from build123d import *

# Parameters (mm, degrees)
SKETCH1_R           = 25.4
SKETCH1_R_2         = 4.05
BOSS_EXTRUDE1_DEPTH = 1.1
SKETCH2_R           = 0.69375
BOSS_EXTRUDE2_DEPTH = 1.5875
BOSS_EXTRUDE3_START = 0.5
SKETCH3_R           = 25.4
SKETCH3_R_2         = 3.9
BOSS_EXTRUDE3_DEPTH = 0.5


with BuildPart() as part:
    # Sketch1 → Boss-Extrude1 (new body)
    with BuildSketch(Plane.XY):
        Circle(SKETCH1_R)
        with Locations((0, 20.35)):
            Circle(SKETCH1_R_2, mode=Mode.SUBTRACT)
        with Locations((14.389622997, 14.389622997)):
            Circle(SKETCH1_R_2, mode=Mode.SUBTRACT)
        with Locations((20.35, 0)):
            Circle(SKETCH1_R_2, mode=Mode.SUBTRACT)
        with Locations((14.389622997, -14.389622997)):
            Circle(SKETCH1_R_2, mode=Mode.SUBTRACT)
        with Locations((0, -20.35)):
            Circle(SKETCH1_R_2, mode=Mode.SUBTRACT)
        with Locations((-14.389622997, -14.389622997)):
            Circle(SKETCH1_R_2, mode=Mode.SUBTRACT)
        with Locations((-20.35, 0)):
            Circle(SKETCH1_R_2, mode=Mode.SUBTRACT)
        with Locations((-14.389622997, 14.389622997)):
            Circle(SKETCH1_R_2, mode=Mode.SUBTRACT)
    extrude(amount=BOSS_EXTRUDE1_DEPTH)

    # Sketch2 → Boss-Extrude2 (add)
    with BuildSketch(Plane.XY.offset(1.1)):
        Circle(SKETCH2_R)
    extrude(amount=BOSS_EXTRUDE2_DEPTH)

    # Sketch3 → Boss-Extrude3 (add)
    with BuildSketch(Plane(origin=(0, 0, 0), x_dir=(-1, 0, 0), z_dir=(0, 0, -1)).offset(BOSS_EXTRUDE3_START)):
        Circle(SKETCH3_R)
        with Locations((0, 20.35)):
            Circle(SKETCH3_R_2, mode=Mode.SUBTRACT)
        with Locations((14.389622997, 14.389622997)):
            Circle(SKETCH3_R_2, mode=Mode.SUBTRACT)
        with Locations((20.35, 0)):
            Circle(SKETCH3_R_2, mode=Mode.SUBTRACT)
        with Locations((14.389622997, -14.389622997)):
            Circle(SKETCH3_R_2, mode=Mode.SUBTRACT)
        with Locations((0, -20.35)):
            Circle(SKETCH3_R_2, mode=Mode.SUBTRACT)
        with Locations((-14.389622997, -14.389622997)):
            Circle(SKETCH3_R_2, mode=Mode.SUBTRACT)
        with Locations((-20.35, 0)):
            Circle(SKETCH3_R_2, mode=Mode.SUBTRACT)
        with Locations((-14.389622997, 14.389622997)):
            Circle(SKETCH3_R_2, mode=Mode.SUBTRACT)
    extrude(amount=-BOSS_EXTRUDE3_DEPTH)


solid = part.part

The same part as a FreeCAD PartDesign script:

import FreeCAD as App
import Part
import Sketcher

V = App.Vector

doc = App.newDocument("Part")
body = doc.addObject("PartDesign::Body", "Body")

# Sketch on XY plane
sketch1 = body.newObject("Sketcher::SketchObject", "Sketch")
sketch1.AttachmentSupport = (doc.getObject("XY_Plane"), [""])
sketch1.MapMode = "FlatFace"
sketch1.addGeometry([
    Part.Circle(V(0, 0, 0), V(0, 0, 1), 25.4),  # 0
    Part.Circle(V(-14.4, -14.4, 0), V(0, 0, 1), 4),  # 1
    Part.Circle(V(0, -20.4, 0), V(0, 0, 1), 4),  # 2
    Part.Circle(V(14.4, -14.4, 0), V(0, 0, 1), 4),  # 3
    Part.Circle(V(-20.4, 0, 0), V(0, 0, 1), 4),  # 4
    Part.Circle(V(-14.4, 14.4, 0), V(0, 0, 1), 4),  # 5
    Part.Circle(V(20.4, 0, 0), V(0, 0, 1), 4),  # 6
    Part.Circle(V(0, 20.4, 0), V(0, 0, 1), 4),  # 7
    Part.Circle(V(14.4, 14.4, 0), V(0, 0, 1), 4),  # 8
], False)
sketch1.addConstraint([
    Sketcher.Constraint("Coincident", 0, 3, -1, 1),
    Sketcher.Constraint("Equal", 1, 2),
    Sketcher.Constraint("Equal", 2, 3),
    Sketcher.Constraint("Equal", 3, 4),
    Sketcher.Constraint("Equal", 4, 5),
    Sketcher.Constraint("Equal", 5, 6),
    Sketcher.Constraint("Equal", 6, 7),
    Sketcher.Constraint("Equal", 7, 8),
    Sketcher.Constraint("Symmetric", 3, 3, 5, 3, -1, 1),
    Sketcher.Constraint("Symmetric", 4, 3, 6, 3, -1, 1),
    Sketcher.Constraint("Symmetric", 2, 3, 7, 3, -1, 1),
    Sketcher.Constraint("Symmetric", 1, 3, 8, 3, -1, 1),
    Sketcher.Constraint("Symmetric", 1, 3, 3, 3, -2),
    Sketcher.Constraint("PointOnObject", 2, 3, -2),
    Sketcher.Constraint("PointOnObject", 4, 3, -1),
    Sketcher.Constraint("Diameter", 0, 50.8),
    Sketcher.Constraint("Diameter", 1, 8.1),
    Sketcher.Constraint("DistanceY", 2, 3, -1, 1, 20.35),
    Sketcher.Constraint("DistanceX", 4, 3, -1, 1, 20.35),
    Sketcher.Constraint("DistanceX", 1, 3, -1, 1, 14.389623),
    Sketcher.Constraint("DistanceY", 1, 3, -1, 1, 14.389623),
])
pad1 = body.newObject("PartDesign::Pad", "Pad")
pad1.Profile = sketch1
pad1.Length = 1.1

# Sketch on XY plane
sketch2 = body.newObject("Sketcher::SketchObject", "Sketch001")
sketch2.AttachmentSupport = (doc.getObject("XY_Plane"), [""])
sketch2.MapMode = "FlatFace"
sketch2.AttachmentOffset = App.Placement(V(0, 0, 1.1), App.Rotation())
sketch2.addGeometry(Part.Circle(V(0, 0, 0), V(0, 0, 1), 0.7), False)
sketch2.addConstraint([
    Sketcher.Constraint("Coincident", 0, 3, -1, 1),
    Sketcher.Constraint("Diameter", 0, 1.3875),
])
pad2 = body.newObject("PartDesign::Pad", "Pad001")
pad2.Profile = sketch2
pad2.Length = 1.5875

# Sketch on XY plane
sketch3 = body.newObject("Sketcher::SketchObject", "Sketch002")
sketch3.AttachmentSupport = (doc.getObject("XY_Plane"), [""])
sketch3.MapMode = "FlatFace"
sketch3.AttachmentOffset = App.Placement(V(0, 0, -0.5), App.Rotation())
sketch3.addGeometry([
    Part.Circle(V(0, 0, 0), V(0, 0, 1), 25.4),  # 0
    Part.Circle(V(14.4, -14.4, 0), V(0, 0, 1), 3.9),  # 1
    Part.Circle(V(0, -20.4, 0), V(0, 0, 1), 3.9),  # 2
    Part.Circle(V(-14.4, -14.4, 0), V(0, 0, 1), 3.9),  # 3
    Part.Circle(V(20.4, 0, 0), V(0, 0, 1), 3.9),  # 4
    Part.Circle(V(14.4, 14.4, 0), V(0, 0, 1), 3.9),  # 5
    Part.Circle(V(-20.4, 0, 0), V(0, 0, 1), 3.9),  # 6
    Part.Circle(V(0, 20.4, 0), V(0, 0, 1), 3.9),  # 7
    Part.Circle(V(-14.4, 14.4, 0), V(0, 0, 1), 3.9),  # 8
], False)
sketch3.addConstraint([
    Sketcher.Constraint("Coincident", 0, 3, -1, 1),
    Sketcher.Constraint("Equal", 1, 2),
    Sketcher.Constraint("Equal", 2, 3),
    Sketcher.Constraint("Equal", 3, 4),
    Sketcher.Constraint("Equal", 4, 5),
    Sketcher.Constraint("Equal", 5, 6),
    Sketcher.Constraint("Equal", 6, 7),
    Sketcher.Constraint("Equal", 7, 8),
    Sketcher.Constraint("Symmetric", 3, 3, 5, 3, -1, 1),
    Sketcher.Constraint("Symmetric", 4, 3, 6, 3, -1, 1),
    Sketcher.Constraint("Symmetric", 2, 3, 7, 3, -1, 1),
    Sketcher.Constraint("Symmetric", 1, 3, 8, 3, -1, 1),
    Sketcher.Constraint("Symmetric", 1, 3, 3, 3, -2),
    Sketcher.Constraint("PointOnObject", 2, 3, -2),
    Sketcher.Constraint("PointOnObject", 4, 3, -1),
    Sketcher.Constraint("Diameter", 0, 50.8),
    Sketcher.Constraint("Diameter", 1, 7.8),
    Sketcher.Constraint("DistanceY", 2, 3, -1, 1, 20.35),
    Sketcher.Constraint("DistanceX", -1, 1, 4, 3, 20.35),
    Sketcher.Constraint("DistanceX", -1, 1, 1, 3, 14.389623),
    Sketcher.Constraint("DistanceY", 1, 3, -1, 1, 14.389623),
])
pad3 = body.newObject("PartDesign::Pad", "Pad002")
pad3.Profile = sketch3
pad3.Length = 0.5

doc.recompute()
